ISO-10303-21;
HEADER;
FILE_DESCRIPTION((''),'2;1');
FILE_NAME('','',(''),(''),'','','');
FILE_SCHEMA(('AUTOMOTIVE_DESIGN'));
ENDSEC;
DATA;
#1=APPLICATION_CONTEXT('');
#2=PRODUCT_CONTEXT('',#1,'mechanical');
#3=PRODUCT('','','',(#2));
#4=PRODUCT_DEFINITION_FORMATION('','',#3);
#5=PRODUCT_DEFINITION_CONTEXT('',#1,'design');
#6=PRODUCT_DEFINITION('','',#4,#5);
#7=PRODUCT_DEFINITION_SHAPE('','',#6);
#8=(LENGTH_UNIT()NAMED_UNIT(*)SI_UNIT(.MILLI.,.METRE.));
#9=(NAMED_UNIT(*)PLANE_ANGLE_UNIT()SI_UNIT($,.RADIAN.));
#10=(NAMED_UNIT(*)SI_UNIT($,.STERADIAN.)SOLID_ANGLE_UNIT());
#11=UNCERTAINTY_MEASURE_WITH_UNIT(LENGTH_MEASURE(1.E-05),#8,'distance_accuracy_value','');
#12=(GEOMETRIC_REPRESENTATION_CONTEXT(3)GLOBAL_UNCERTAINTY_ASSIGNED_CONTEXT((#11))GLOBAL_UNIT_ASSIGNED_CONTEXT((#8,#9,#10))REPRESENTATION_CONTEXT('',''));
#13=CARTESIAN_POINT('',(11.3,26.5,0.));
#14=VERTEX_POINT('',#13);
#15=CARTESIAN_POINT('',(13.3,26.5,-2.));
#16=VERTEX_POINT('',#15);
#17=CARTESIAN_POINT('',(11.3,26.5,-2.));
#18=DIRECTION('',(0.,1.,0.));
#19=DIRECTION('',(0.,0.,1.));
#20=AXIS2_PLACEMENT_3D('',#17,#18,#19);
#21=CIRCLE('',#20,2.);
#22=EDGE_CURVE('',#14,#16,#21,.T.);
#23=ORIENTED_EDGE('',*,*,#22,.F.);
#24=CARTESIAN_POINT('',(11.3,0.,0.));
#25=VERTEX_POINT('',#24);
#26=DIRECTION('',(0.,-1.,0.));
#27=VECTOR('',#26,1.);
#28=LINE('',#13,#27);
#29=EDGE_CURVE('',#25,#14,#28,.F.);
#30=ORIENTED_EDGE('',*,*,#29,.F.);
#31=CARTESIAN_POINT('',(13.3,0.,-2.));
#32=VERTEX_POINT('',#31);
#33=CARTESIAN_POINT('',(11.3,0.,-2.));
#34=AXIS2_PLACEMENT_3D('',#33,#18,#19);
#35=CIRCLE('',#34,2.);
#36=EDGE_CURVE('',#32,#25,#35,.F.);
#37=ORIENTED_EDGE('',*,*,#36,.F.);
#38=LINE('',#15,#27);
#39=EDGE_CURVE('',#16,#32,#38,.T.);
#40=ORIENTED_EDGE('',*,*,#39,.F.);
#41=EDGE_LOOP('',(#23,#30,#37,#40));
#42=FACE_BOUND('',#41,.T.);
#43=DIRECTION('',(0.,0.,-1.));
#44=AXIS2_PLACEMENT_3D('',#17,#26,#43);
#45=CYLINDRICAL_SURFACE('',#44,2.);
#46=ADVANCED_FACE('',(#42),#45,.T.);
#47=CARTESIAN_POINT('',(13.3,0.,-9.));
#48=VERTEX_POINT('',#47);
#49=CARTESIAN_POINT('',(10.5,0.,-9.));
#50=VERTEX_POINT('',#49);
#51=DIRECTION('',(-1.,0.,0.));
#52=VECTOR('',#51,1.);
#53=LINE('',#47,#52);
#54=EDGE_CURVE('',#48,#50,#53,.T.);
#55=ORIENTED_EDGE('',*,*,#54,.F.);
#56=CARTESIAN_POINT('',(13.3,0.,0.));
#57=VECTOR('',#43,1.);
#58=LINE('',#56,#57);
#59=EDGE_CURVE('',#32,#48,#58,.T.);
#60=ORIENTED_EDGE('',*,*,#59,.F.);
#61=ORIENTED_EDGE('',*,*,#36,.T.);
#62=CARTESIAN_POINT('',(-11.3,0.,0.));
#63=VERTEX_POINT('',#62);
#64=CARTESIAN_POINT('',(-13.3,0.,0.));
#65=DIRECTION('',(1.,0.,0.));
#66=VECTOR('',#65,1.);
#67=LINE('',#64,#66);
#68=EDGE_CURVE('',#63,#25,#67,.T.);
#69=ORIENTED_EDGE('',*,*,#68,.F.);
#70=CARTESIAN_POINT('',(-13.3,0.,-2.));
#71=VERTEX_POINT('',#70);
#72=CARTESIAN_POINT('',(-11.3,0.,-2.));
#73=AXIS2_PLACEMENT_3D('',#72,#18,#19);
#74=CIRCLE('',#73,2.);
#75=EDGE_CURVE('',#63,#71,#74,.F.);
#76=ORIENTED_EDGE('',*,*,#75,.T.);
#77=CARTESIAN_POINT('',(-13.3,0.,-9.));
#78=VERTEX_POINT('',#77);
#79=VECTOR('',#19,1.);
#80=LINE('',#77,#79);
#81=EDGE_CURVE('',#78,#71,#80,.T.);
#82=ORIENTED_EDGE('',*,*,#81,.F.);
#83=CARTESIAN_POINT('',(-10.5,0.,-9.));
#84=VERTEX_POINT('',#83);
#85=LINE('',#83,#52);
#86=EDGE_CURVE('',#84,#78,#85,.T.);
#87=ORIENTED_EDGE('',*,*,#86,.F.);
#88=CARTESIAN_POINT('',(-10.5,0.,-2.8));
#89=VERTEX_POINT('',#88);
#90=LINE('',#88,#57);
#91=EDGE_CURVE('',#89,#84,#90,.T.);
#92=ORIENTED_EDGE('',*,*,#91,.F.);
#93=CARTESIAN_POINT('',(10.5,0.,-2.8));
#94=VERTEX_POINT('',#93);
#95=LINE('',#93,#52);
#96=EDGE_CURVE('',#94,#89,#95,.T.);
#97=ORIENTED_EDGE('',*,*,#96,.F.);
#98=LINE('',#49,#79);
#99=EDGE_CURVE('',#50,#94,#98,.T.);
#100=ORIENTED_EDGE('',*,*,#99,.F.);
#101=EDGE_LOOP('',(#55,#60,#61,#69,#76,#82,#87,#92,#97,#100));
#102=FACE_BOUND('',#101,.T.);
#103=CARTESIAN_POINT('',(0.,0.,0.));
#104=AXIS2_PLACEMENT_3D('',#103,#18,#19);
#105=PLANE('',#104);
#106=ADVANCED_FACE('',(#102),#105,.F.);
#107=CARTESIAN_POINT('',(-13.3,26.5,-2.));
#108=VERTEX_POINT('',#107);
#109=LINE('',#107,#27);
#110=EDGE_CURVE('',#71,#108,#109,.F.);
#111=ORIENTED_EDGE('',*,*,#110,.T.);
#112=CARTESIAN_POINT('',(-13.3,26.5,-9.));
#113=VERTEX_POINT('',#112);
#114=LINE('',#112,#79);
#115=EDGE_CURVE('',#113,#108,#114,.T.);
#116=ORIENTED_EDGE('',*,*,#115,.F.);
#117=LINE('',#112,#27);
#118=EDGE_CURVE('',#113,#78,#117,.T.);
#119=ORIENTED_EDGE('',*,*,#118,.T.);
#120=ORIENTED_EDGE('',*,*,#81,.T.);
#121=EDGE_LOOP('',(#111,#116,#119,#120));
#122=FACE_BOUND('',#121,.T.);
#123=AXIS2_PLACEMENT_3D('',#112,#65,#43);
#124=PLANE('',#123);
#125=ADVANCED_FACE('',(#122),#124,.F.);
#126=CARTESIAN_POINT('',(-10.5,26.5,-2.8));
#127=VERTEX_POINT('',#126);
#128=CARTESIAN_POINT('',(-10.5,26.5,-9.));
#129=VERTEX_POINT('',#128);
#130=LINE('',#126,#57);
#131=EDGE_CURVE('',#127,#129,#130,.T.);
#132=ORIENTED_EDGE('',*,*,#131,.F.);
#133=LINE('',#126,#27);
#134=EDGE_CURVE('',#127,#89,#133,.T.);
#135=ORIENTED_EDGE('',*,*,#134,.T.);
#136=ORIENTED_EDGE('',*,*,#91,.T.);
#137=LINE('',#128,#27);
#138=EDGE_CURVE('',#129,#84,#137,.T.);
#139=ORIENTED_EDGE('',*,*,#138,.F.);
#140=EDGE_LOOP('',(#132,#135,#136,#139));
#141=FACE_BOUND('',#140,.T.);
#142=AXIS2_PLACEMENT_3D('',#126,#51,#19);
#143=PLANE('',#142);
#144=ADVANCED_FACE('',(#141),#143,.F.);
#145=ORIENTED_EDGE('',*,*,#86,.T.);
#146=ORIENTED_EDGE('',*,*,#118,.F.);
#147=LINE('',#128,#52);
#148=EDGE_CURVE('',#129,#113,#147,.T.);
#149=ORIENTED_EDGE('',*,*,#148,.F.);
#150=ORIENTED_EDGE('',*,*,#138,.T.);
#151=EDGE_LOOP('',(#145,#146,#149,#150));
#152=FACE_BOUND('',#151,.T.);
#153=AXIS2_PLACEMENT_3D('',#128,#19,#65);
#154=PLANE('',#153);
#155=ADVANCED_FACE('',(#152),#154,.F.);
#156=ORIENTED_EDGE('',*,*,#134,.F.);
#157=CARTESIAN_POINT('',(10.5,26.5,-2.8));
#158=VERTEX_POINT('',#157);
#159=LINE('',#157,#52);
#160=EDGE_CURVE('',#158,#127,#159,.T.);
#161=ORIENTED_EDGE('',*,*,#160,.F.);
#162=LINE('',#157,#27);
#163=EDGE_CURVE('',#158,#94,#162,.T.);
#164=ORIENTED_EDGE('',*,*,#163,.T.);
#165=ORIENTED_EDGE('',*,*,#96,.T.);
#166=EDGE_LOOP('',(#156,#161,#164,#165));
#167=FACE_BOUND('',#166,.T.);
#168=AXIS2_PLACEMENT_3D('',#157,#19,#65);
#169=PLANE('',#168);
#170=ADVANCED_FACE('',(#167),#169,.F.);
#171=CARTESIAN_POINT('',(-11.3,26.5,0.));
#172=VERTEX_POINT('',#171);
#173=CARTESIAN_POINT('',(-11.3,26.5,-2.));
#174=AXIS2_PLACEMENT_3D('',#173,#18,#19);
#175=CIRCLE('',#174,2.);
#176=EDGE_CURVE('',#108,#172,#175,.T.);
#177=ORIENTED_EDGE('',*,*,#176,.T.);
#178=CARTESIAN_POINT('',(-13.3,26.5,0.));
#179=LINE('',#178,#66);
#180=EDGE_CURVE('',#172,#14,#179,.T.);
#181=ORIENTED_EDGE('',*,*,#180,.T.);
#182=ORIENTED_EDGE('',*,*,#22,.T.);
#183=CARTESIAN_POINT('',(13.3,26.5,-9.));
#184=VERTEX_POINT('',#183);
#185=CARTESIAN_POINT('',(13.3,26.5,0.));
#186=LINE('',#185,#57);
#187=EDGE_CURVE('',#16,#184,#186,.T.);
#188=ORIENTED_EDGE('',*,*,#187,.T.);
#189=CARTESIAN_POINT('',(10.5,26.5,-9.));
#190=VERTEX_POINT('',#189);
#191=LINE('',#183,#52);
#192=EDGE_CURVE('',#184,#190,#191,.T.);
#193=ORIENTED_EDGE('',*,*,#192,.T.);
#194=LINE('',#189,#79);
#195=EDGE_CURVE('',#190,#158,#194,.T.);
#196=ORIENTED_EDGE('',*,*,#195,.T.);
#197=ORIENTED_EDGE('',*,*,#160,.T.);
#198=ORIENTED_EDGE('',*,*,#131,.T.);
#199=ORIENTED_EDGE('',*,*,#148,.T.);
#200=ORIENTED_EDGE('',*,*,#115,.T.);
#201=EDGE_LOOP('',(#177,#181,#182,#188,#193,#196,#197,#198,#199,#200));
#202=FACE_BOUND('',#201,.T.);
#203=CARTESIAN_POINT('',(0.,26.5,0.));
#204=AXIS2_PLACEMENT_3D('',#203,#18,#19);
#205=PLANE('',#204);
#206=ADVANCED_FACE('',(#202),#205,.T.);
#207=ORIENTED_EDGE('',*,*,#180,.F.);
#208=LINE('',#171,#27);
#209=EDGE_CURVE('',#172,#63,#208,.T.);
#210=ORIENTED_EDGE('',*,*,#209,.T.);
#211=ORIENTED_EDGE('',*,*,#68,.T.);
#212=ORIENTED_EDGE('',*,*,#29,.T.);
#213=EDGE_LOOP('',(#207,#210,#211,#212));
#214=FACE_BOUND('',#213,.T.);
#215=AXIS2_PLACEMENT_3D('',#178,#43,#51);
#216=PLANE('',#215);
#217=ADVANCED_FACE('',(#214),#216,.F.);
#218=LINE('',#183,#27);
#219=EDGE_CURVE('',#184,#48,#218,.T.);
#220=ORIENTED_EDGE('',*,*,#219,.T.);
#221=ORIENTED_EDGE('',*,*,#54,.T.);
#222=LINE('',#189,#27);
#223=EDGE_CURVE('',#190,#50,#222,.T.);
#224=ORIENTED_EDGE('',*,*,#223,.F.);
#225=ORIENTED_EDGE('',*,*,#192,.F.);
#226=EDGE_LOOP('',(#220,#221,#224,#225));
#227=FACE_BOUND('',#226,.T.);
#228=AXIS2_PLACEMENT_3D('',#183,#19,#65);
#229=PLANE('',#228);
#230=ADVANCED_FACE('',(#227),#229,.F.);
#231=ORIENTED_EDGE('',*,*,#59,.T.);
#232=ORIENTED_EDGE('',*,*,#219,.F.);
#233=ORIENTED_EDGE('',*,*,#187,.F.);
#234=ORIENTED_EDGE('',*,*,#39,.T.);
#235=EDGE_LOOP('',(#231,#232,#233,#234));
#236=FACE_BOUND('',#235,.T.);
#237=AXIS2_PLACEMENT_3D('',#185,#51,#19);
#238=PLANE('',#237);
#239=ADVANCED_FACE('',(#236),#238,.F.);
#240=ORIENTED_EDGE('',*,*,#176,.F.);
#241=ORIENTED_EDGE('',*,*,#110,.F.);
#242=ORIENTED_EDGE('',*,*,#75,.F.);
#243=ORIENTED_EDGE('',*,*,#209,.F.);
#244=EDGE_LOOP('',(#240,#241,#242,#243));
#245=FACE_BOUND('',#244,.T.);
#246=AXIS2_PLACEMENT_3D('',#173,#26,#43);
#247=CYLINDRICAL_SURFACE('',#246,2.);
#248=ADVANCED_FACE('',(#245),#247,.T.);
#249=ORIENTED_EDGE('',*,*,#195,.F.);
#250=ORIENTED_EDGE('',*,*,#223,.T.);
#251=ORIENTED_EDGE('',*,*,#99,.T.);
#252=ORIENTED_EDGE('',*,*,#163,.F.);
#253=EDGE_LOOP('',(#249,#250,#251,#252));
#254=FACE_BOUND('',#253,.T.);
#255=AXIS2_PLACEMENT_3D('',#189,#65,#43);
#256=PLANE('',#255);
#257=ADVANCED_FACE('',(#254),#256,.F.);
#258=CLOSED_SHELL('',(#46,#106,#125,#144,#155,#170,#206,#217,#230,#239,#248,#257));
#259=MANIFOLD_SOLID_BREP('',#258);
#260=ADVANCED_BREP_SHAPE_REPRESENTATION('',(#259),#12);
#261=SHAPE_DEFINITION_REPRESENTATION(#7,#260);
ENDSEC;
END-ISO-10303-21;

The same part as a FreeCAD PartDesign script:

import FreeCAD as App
import Part
import Sketcher

V = App.Vector


def edges_at(feature, points):
    """Names of the edges that pass closest to the given points."""
    edges = feature.Shape.Edges
    near = lambda p: min(range(len(edges)), key=lambda i: edges[i].distToShape(Part.Vertex(*p))[0])
    return sorted({f"Edge{near(p) + 1}" for p in points})


def add_polygon(sketch, points):
    """Adds a closed chain of lines whose ends are joined by coincident constraints."""
    first, n = sketch.GeometryCount, len(points)
    for a, b in zip(points, points[1:] + points[:1]):
        sketch.addGeometry(Part.LineSegment(App.Vector(*a, 0), App.Vector(*b, 0)), False)
    for i in range(n):
        sketch.addConstraint(Sketcher.Constraint("Coincident", first + i, 2, first + (i + 1) % n, 1))

doc = App.newDocument("Part")
body = doc.addObject("PartDesign::Body", "Body")

sketch1 = doc.addObject("Sketcher::SketchObject", "Sketch")
body.addObject(sketch1)
sketch1.AttachmentSupport = (doc.XZ_Plane, [""])
sketch1.MapMode = "FlatFace"
add_polygon(sketch1, [(-13.3, 0), (13.3, 0), (13.3, -9), (10.5, -9), (10.5, -2.8), (-10.5, -2.8), (-10.5, -9), (-13.3, -9)])
sketch1.addConstraint([
    Sketcher.Constraint("Horizontal", 0),
    Sketcher.Constraint("Vertical", 1),
    Sketcher.Constraint("Horizontal", 2),
    Sketcher.Constraint("Vertical", 3),
    Sketcher.Constraint("Horizontal", 4),
    Sketcher.Constraint("Vertical", 5),
    Sketcher.Constraint("Horizontal", 6),
    Sketcher.Constraint("Vertical", 7),
    Sketcher.Constraint("Symmetric", 0, 2, 7, 2, -1, 1),
    Sketcher.Constraint("Symmetric", 2, 2, 5, 2, -2),
    Sketcher.Constraint("DistanceX", 4, 2, 4, 1, 21.0),
    Sketcher.Constraint("DistanceY", 1, 2, 1, 1, 9.0),
    Sketcher.Constraint("DistanceX", 0, 1, 0, 2, 26.6),
    Sketcher.Constraint("DistanceY", 3, 1, 3, 2, 6.2),
])
pad1 = doc.addObject("PartDesign::Pad", "Pad")
body.addObject(pad1)
pad1.Profile = sketch1
pad1.Length = 26.5
pad1.Reversed = True
doc.recompute()

fillet = doc.addObject("PartDesign::Fillet", "Fillet")
body.addObject(fillet)
fillet.Base = (pad1, edges_at(pad1, [(13.3, 13.25, 0), (-13.3, 13.25, 0)]))
fillet.Radius = 2

doc.recompute()
